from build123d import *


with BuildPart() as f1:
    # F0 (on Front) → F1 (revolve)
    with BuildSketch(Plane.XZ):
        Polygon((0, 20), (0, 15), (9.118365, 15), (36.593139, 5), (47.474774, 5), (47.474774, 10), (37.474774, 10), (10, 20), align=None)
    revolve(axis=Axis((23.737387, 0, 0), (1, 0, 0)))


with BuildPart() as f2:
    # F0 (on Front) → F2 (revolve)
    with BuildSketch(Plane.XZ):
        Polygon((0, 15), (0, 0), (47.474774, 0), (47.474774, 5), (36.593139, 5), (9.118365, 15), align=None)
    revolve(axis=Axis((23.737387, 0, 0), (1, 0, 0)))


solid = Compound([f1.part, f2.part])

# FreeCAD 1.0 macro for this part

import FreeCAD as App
import Part
import Sketcher
Q = App.Units.Quantity

doc = App.newDocument("Part")
body = doc.addObject("PartDesign::Body", "Body")

# Sketch on XZ plane
sketch1 = body.newObject("Sketcher::SketchObject", "Sketch")
sketch1.AttachmentSupport = (doc.getObject("XZ_Plane"), [""])
sketch1.MapMode = "FlatFace"
sketch1.addGeometry([
    Part.LineSegment(App.Vector(0, 20, 0), App.Vector(0, 15, 0)),  # 0
    Part.LineSegment(App.Vector(0, 15, 0), App.Vector(9, 15, 0)),  # 1
    Part.LineSegment(App.Vector(9, 15, 0), App.Vector(37, 5, 0)),  # 2
    Part.LineSegment(App.Vector(37, 5, 0), App.Vector(47, 5, 0)),  # 3
    Part.LineSegment(App.Vector(47, 5, 0), App.Vector(47, 10, 0)),  # 4
    Part.LineSegment(App.Vector(47, 10, 0), App.Vector(37, 10, 0)),  # 5
    Part.LineSegment(App.Vector(37, 10, 0), App.Vector(10, 20, 0)),  # 6
    Part.LineSegment(App.Vector(10, 20, 0), App.Vector(0, 20, 0)),  # 7
], False)
sketch1.addConstraint([
    Sketcher.Constraint("Coincident", 0, 2, 1, 1),
    Sketcher.Constraint("Coincident", 1, 2, 2, 1),
    Sketcher.Constraint("Coincident", 2, 2, 3, 1),
    Sketcher.Constraint("Coincident", 3, 2, 4, 1),
    Sketcher.Constraint("Coincident", 4, 2, 5, 1),
    Sketcher.Constraint("Coincident", 5, 2, 6, 1),
    Sketcher.Constraint("Coincident", 6, 2, 7, 1),
    Sketcher.Constraint("Coincident", 7, 2, 0, 1),
    Sketcher.Constraint("Vertical", 0),
    Sketcher.Constraint("Horizontal", 1),
    Sketcher.Constraint("Horizontal", 3),
    Sketcher.Constraint("Vertical", 4),
    Sketcher.Constraint("Horizontal", 5),
    Sketcher.Constraint("Horizontal", 7),
    Sketcher.Constraint("PointOnObject", 0, 2, -2),
    Sketcher.Constraint("Parallel", 2, 6),
    Sketcher.Constraint("Equal", 5, 7),
    Sketcher.Constraint("Equal", 0, 4),
    Sketcher.Constraint("DistanceX", 5, 2, 5, 1, 10.0),
    Sketcher.Constraint("DistanceY", 0, 2, 0, 1, 5.0),
    Sketcher.Constraint("Angle", 2, Q("-20 deg")),
    Sketcher.Constraint("DistanceY", -1, 1, 0, 2, 15.0),
    Sketcher.Constraint("DistanceY", -1, 1, 2, 2, 5.0),
    Sketcher.Constraint("DistanceX", 1, 1, 1, 2, 9.118365),
])
revolution = body.newObject("PartDesign::Revolution", "Revolution")
revolution.Profile = sketch1
revolution.ReferenceAxis = (sketch1, ["H_Axis"])
revolution.Angle = 360
body2 = doc.addObject("PartDesign::Body", "Body001")

# Sketch on XZ plane
sketch2 = body2.newObject("Sketcher::SketchObject", "Sketch001")
sketch2.AttachmentSupport = (doc.getObject("XZ_Plane001"), [""])
sketch2.MapMode = "FlatFace"
sketch2.addGeometry([
    Part.LineSegment(App.Vector(0, 15, 0), App.Vector(0, 0, 0)),  # 0
    Part.LineSegment(App.Vector(0, 0, 0), App.Vector(47, 0, 0)),  # 1
    Part.LineSegment(App.Vector(47, 0, 0), App.Vector(47, 5, 0)),  # 2
    Part.LineSegment(App.Vector(47, 5, 0), App.Vector(37, 5, 0)),  # 3
    Part.LineSegment(App.Vector(37, 5, 0), App.Vector(9, 15, 0)),  # 4
    Part.LineSegment(App.Vector(9, 15, 0), App.Vector(0, 15, 0)),  # 5
], False)
sketch2.addConstraint([
    Sketcher.Constraint("Coincident", 0, 2, 1, 1),
    Sketcher.Constraint("Coincident", 1, 2, 2, 1),
    Sketcher.Constraint("Coincident", 2, 2, 3, 1),
    Sketcher.Constraint("Coincident", 3, 2, 4, 1),
    Sketcher.Constraint("Coincident", 4, 2, 5, 1),
    Sketcher.Constraint("Coincident", 5, 2, 0, 1),
    Sketcher.Constraint("Vertical", 0),
    Sketcher.Constraint("Horizontal", 1),
    Sketcher.Constraint("Vertical", 2),
    Sketcher.Constraint("Horizontal", 3),
    Sketcher.Constraint("Horizontal", 5),
    Sketcher.Constraint("Coincident", 0, 2, -1, 1),
    Sketcher.Constraint("DistanceY", 0, 2, 0, 1, 15.0),
    Sketcher.Constraint("DistanceY", 2, 1, 2, 2, 5.0),
    Sketcher.Constraint("Angle", 4, Q("160 deg")),
    Sketcher.Constraint("DistanceX", 1, 1, 1, 2, 47.474774),
    Sketcher.Constraint("DistanceX", 3, 2, 3, 1, 10.881635),
])
revolution2 = body2.newObject("PartDesign::Revolution", "Revolution001")
revolution2.Profile = sketch2
revolution2.ReferenceAxis = (sketch2, ["H_Axis"])
revolution2.Angle = 360

doc.recompute()
